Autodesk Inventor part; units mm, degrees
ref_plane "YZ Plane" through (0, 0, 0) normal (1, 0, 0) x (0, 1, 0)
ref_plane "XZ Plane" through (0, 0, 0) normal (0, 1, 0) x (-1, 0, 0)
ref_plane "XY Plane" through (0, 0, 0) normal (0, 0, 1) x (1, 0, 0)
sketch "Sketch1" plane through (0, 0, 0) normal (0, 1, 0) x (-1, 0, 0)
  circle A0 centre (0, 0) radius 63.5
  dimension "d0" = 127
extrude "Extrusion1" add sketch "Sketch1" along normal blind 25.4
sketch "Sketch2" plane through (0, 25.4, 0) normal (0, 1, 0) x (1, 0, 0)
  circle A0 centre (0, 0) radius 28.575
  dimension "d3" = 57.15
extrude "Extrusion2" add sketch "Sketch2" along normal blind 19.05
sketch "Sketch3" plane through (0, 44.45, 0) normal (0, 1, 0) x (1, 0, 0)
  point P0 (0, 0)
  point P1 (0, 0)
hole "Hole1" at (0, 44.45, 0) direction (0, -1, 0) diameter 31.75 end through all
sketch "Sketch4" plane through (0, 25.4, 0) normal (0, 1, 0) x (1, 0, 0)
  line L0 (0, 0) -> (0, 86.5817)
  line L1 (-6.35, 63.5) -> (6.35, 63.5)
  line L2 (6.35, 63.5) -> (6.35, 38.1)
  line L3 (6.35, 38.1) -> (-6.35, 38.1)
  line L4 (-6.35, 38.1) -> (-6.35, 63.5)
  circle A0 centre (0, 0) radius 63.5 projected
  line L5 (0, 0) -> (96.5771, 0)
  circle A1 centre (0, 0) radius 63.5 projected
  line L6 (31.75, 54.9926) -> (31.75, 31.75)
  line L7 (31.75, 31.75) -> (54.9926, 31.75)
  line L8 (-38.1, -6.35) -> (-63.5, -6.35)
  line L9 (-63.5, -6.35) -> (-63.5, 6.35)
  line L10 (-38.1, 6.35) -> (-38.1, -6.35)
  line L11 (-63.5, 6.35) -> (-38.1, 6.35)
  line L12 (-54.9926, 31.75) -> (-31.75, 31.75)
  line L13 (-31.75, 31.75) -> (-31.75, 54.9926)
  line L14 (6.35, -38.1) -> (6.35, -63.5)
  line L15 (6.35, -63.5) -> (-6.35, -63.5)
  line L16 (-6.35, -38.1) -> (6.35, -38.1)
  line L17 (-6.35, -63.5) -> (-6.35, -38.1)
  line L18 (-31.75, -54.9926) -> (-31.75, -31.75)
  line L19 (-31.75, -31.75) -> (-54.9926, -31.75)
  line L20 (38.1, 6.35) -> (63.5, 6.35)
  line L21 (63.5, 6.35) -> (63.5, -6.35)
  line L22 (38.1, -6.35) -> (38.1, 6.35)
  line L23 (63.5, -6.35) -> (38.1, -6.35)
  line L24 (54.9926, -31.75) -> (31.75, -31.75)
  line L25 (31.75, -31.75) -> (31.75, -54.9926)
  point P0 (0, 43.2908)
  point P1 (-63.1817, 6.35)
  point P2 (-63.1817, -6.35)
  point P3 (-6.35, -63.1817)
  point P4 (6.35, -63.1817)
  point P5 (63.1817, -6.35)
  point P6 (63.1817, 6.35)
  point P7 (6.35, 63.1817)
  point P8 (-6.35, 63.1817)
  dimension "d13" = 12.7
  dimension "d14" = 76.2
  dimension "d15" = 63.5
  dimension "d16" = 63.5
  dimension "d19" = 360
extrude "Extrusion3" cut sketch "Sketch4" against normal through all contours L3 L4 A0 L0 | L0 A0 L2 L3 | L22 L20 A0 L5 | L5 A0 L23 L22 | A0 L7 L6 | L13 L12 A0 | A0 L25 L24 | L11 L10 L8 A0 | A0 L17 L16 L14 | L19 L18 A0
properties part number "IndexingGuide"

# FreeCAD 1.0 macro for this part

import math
import FreeCAD as App
import Part
import Sketcher
Q = App.Units.Quantity

doc = App.newDocument("Part")
body = doc.addObject("PartDesign::Body", "Body")

sketch1 = body.newObject("Sketcher::SketchObject", "Sketch")
sketch1.AttachmentSupport = (doc.getObject("XZ_Plane"), [""])
sketch1.MapMode = "FlatFace"
sketch1.addGeometry(Part.Circle(App.Vector(0, 0, 0), App.Vector(0, 0, 1), 64), False)
sketch1.addConstraint(Sketcher.Constraint("Coincident", 0, 3, -1, 1))
sketch1.addConstraint(Sketcher.Constraint("Diameter", 0, Q("5 in")))
pad1 = body.newObject("PartDesign::Pad", "Pad")
pad1.Profile = sketch1
pad1.Length = Q("1 in")
pad1.Reversed = True

sketch2 = body.newObject("Sketcher::SketchObject", "Sketch001")
sketch2.AttachmentSupport = (doc.getObject("XZ_Plane"), [""])
sketch2.MapMode = "FlatFace"
sketch2.AttachmentOffset = App.Placement(App.Vector(0, 0, -1 * 25.4), App.Rotation())
sketch2.addGeometry(Part.Circle(App.Vector(0, 0, 0), App.Vector(0, 0, 1), 29), False)
sketch2.addConstraint(Sketcher.Constraint("Coincident", 0, 3, -1, 1))
sketch2.addConstraint(Sketcher.Constraint("Diameter", 0, Q("2.25 in")))
pad2 = body.newObject("PartDesign::Pad", "Pad001")
pad2.Profile = sketch2
pad2.Length = Q("0.75 in")
pad2.Reversed = True

sketch3 = body.newObject("Sketcher::SketchObject", "Sketch002")
sketch3.AttachmentSupport = (doc.getObject("XZ_Plane"), [""])
sketch3.MapMode = "FlatFace"
sketch3.AttachmentOffset = App.Placement(App.Vector(0, 0, -1.75 * 25.4), App.Rotation())
sketch3.addGeometry(Part.Circle(App.Vector(0, 0, 0), App.Vector(0, 0, 1), 16), False)
sketch3.addConstraint(Sketcher.Constraint("Coincident", 0, 3, -1, 1))
sketch3.addConstraint(Sketcher.Constraint("Diameter", 0, Q("1.25 in")))
doc.recompute()
hole = body.newObject("PartDesign::Hole", "Hole")
hole.Profile = sketch3
hole.ThreadType = "None"
hole.Diameter = Q("1.25 in")
hole.DepthType = "ThroughAll"
hole.Reversed = True

sketch4 = body.newObject("Sketcher::SketchObject", "Sketch003")
sketch4.AttachmentSupport = (doc.getObject("XZ_Plane"), [""])
sketch4.MapMode = "FlatFace"
sketch4.AttachmentOffset = App.Placement(App.Vector(0, 0, -1 * 25.4), App.Rotation())
sketch4.addGeometry(Part.LineSegment(App.Vector(-6, -38, 0), App.Vector(6, -38, 0)), False)
sketch4.addGeometry(Part.LineSegment(App.Vector(6, -38, 0), App.Vector(6, -63, 0)), False)
sketch4.addGeometry(Part.ArcOfCircle(Part.Circle(App.Vector(0, 0, 0), App.Vector(0, 0, 1), 64), math.radians(-95.74), math.radians(-84.26)), False)
sketch4.addGeometry(Part.LineSegment(App.Vector(-6, -63, 0), App.Vector(-6, -38, 0)), False)
sketch4.addGeometry(Part.LineSegment(App.Vector(38, -6, 0), App.Vector(38, 6, 0)), False)
sketch4.addGeometry(Part.LineSegment(App.Vector(38, 6, 0), App.Vector(63, 6, 0)), False)
sketch4.addGeometry(Part.ArcOfCircle(Part.Circle(App.Vector(0, 0, 0), App.Vector(0, 0, 1), 64), math.radians(-5.74), math.radians(5.74)), False)
sketch4.addGeometry(Part.LineSegment(App.Vector(63, -6, 0), App.Vector(38, -6, 0)), False)
sketch4.addGeometry(Part.ArcOfCircle(Part.Circle(App.Vector(0, 0, 0), App.Vector(0, 0, 1), 64), math.radians(-60), math.radians(-30)), False)
sketch4.addGeometry(Part.LineSegment(App.Vector(32, -55, 0), App.Vector(32, -32, 0)), False)
sketch4.addGeometry(Part.LineSegment(App.Vector(32, -32, 0), App.Vector(55, -32, 0)), False)
sketch4.addGeometry(Part.LineSegment(App.Vector(-32, -32, 0), App.Vector(-32, -55, 0)), False)
sketch4.addGeometry(Part.ArcOfCircle(Part.Circle(App.Vector(0, 0, 0), App.Vector(0, 0, 1), 64), math.radians(-150), math.radians(-120)), False)
sketch4.addGeometry(Part.LineSegment(App.Vector(-55, -32, 0), App.Vector(-32, -32, 0)), False)
sketch4.addGeometry(Part.ArcOfCircle(Part.Circle(App.Vector(0, 0, 0), App.Vector(0, 0, 1), 64), math.radians(30), math.radians(60)), False)
sketch4.addGeometry(Part.LineSegment(App.Vector(55, 32, 0), App.Vector(32, 32, 0)), False)
sketch4.addGeometry(Part.LineSegment(App.Vector(32, 32, 0), App.Vector(32, 55, 0)), False)
sketch4.addGeometry(Part.LineSegment(App.Vector(-38, -6, 0), App.Vector(-63, -6, 0)), False)
sketch4.addGeometry(Part.ArcOfCircle(Part.Circle(App.Vector(0, 0, 0), App.Vector(0, 0, 1), 64), math.radians(174.26), math.radians(185.74)), False)
sketch4.addGeometry(Part.LineSegment(App.Vector(-63, 6, 0), App.Vector(-38, 6, 0)), False)
sketch4.addGeometry(Part.LineSegment(App.Vector(-38, 6, 0), App.Vector(-38, -6, 0)), False)
sketch4.addGeometry(Part.ArcOfCircle(Part.Circle(App.Vector(0, 0, 0), App.Vector(0, 0, 1), 64), math.radians(84.26), math.radians(95.74)), False)
sketch4.addGeometry(Part.LineSegment(App.Vector(6, 63, 0), App.Vector(6, 38, 0)), False)
sketch4.addGeometry(Part.LineSegment(App.Vector(6, 38, 0), App.Vector(-6, 38, 0)), False)
sketch4.addGeometry(Part.LineSegment(App.Vector(-6, 38, 0), App.Vector(-6, 63, 0)), False)
sketch4.addGeometry(Part.LineSegment(App.Vector(-32, 32, 0), App.Vector(-55, 32, 0)), False)
sketch4.addGeometry(Part.ArcOfCircle(Part.Circle(App.Vector(0, 0, 0), App.Vector(0, 0, 1), 64), math.radians(120), math.radians(150)), False)
sketch4.addGeometry(Part.LineSegment(App.Vector(-32, 55, 0), App.Vector(-32, 32, 0)), False)
sketch4.addConstraint(Sketcher.Constraint("Coincident", 0, 2, 1, 1))
sketch4.addConstraint(Sketcher.Constraint("Coincident", 1, 2, 2, 2))
sketch4.addConstraint(Sketcher.Constraint("Coincident", 2, 1, 3, 1))
sketch4.addConstraint(Sketcher.Constraint("Coincident", 3, 2, 0, 1))
sketch4.addConstraint(Sketcher.Constraint("Coincident", 4, 2, 5, 1))
sketch4.addConstraint(Sketcher.Constraint("Coincident", 5, 2, 6, 2))
sketch4.addConstraint(Sketcher.Constraint("Coincident", 6, 1, 7, 1))
sketch4.addConstraint(Sketcher.Constraint("Coincident", 7, 2, 4, 1))
sketch4.addConstraint(Sketcher.Constraint("Coincident", 8, 1, 9, 1))
sketch4.addConstraint(Sketcher.Constraint("Coincident", 9, 2, 10, 1))
sketch4.addConstraint(Sketcher.Constraint("Coincident", 10, 2, 8, 2))
sketch4.addConstraint(Sketcher.Constraint("Coincident", 11, 2, 12, 2))
sketch4.addConstraint(Sketcher.Constraint("Coincident", 12, 1, 13, 1))
sketch4.addConstraint(Sketcher.Constraint("Coincident", 13, 2, 11, 1))
sketch4.addConstraint(Sketcher.Constraint("Coincident", 14, 1, 15, 1))
sketch4.addConstraint(Sketcher.Constraint("Coincident", 15, 2, 16, 1))
sketch4.addConstraint(Sketcher.Constraint("Coincident", 16, 2, 14, 2))
sketch4.addConstraint(Sketcher.Constraint("Coincident", 17, 2, 18, 2))
sketch4.addConstraint(Sketcher.Constraint("Coincident", 18, 1, 19, 1))
sketch4.addConstraint(Sketcher.Constraint("Coincident", 19, 2, 20, 1))
sketch4.addConstraint(Sketcher.Constraint("Coincident", 20, 2, 17, 1))
sketch4.addConstraint(Sketcher.Constraint("Coincident", 21, 1, 22, 1))
sketch4.addConstraint(Sketcher.Constraint("Coincident", 22, 2, 23, 1))
sketch4.addConstraint(Sketcher.Constraint("Coincident", 23, 2, 24, 1))
sketch4.addConstraint(Sketcher.Constraint("Coincident", 24, 2, 21, 2))
sketch4.addConstraint(Sketcher.Constraint("Coincident", 25, 2, 26, 2))
sketch4.addConstraint(Sketcher.Constraint("Coincident", 26, 1, 27, 1))
sketch4.addConstraint(Sketcher.Constraint("Coincident", 27, 2, 25, 1))
sketch4.addConstraint(Sketcher.Constraint("Horizontal", 0))
sketch4.addConstraint(Sketcher.Constraint("Vertical", 1))
sketch4.addConstraint(Sketcher.Constraint("Vertical", 3))
sketch4.addConstraint(Sketcher.Constraint("Vertical", 4))
sketch4.addConstraint(Sketcher.Constraint("Horizontal", 5))
sketch4.addConstraint(Sketcher.Constraint("Horizontal", 7))
sketch4.addConstraint(Sketcher.Constraint("Vertical", 9))
sketch4.addConstraint(Sketcher.Constraint("Horizontal", 10))
sketch4.addConstraint(Sketcher.Constraint("Vertical", 11))
sketch4.addConstraint(Sketcher.Constraint("Horizontal", 13))
sketch4.addConstraint(Sketcher.Constraint("Horizontal", 15))
sketch4.addConstraint(Sketcher.Constraint("Vertical", 16))
sketch4.addConstraint(Sketcher.Constraint("Horizontal", 17))
sketch4.addConstraint(Sketcher.Constraint("Horizontal", 19))
sketch4.addConstraint(Sketcher.Constraint("Vertical", 20))
sketch4.addConstraint(Sketcher.Constraint("Vertical", 22))
sketch4.addConstraint(Sketcher.Constraint("Horizontal", 23))
sketch4.addConstraint(Sketcher.Constraint("Vertical", 24))
sketch4.addConstraint(Sketcher.Constraint("Horizontal", 25))
sketch4.addConstraint(Sketcher.Constraint("Vertical", 27))
sketch4.addConstraint(Sketcher.Constraint("Coincident", 2, 3, -1, 1))
sketch4.addConstraint(Sketcher.Constraint("Coincident", 6, 3, -1, 1))
sketch4.addConstraint(Sketcher.Constraint("Coincident", 8, 3, -1, 1))
sketch4.addConstraint(Sketcher.Constraint("Coincident", 12, 3, -1, 1))
sketch4.addConstraint(Sketcher.Constraint("Coincident", 14, 3, -1, 1))
sketch4.addConstraint(Sketcher.Constraint("Coincident", 18, 3, -1, 1))
sketch4.addConstraint(Sketcher.Constraint("Coincident", 21, 3, -1, 1))
sketch4.addConstraint(Sketcher.Constraint("Coincident", 26, 3, -1, 1))
sketch4.addConstraint(Sketcher.Constraint("Equal", 2, 6))
sketch4.addConstraint(Sketcher.Constraint("Equal", 6, 8))
sketch4.addConstraint(Sketcher.Constraint("Equal", 8, 12))
sketch4.addConstraint(Sketcher.Constraint("Equal", 12, 14))
sketch4.addConstraint(Sketcher.Constraint("Equal", 14, 18))
sketch4.addConstraint(Sketcher.Constraint("Equal", 18, 21))
sketch4.addConstraint(Sketcher.Constraint("Equal", 21, 26))
sketch4.addConstraint(Sketcher.Constraint("Symmetric", 13, 2, 15, 2, -1, 1))
sketch4.addConstraint(Sketcher.Constraint("Symmetric", 7, 2, 19, 2, -1, 1))
sketch4.addConstraint(Sketcher.Constraint("Symmetric", 3, 2, 22, 2, -1, 1))
sketch4.addConstraint(Sketcher.Constraint("Symmetric", 9, 2, 27, 2, -1, 1))
sketch4.addConstraint(Sketcher.Constraint("Symmetric", 9, 2, 13, 2, -2))
sketch4.addConstraint(Sketcher.Constraint("Horizontal", 1, 2, 2, 1))
sketch4.addConstraint(Sketcher.Constraint("Horizontal", 7, 2, 17, 2))
sketch4.addConstraint(Sketcher.Constraint("Horizontal", 5, 2, 18, 1))
sketch4.addConstraint(Sketcher.Constraint("Horizontal", 21, 1, 24, 2))
sketch4.addConstraint(Sketcher.Constraint("Equal", 19, 1))
sketch4.addConstraint(Sketcher.Constraint("Equal", 23, 4))
sketch4.addConstraint(Sketcher.Constraint("Equal", 25, 9))
sketch4.addConstraint(Sketcher.Constraint("Radius", 2, Q("2.5 in")))
sketch4.addConstraint(Sketcher.Constraint("DistanceX", 0, 1, 0, 2, Q("0.5 in")))
sketch4.addConstraint(Sketcher.Constraint("DistanceX", 1, 2, 8, 1, Q("1 in")))
sketch4.addConstraint(Sketcher.Constraint("DistanceY", 0, 2, -1, 1, Q("1.5 in")))
pocket1 = body.newObject("PartDesign::Pocket", "Pocket")
pocket1.Profile = sketch4
pocket1.Type = "ThroughAll"
pocket1.Reversed = True

doc.recompute()
